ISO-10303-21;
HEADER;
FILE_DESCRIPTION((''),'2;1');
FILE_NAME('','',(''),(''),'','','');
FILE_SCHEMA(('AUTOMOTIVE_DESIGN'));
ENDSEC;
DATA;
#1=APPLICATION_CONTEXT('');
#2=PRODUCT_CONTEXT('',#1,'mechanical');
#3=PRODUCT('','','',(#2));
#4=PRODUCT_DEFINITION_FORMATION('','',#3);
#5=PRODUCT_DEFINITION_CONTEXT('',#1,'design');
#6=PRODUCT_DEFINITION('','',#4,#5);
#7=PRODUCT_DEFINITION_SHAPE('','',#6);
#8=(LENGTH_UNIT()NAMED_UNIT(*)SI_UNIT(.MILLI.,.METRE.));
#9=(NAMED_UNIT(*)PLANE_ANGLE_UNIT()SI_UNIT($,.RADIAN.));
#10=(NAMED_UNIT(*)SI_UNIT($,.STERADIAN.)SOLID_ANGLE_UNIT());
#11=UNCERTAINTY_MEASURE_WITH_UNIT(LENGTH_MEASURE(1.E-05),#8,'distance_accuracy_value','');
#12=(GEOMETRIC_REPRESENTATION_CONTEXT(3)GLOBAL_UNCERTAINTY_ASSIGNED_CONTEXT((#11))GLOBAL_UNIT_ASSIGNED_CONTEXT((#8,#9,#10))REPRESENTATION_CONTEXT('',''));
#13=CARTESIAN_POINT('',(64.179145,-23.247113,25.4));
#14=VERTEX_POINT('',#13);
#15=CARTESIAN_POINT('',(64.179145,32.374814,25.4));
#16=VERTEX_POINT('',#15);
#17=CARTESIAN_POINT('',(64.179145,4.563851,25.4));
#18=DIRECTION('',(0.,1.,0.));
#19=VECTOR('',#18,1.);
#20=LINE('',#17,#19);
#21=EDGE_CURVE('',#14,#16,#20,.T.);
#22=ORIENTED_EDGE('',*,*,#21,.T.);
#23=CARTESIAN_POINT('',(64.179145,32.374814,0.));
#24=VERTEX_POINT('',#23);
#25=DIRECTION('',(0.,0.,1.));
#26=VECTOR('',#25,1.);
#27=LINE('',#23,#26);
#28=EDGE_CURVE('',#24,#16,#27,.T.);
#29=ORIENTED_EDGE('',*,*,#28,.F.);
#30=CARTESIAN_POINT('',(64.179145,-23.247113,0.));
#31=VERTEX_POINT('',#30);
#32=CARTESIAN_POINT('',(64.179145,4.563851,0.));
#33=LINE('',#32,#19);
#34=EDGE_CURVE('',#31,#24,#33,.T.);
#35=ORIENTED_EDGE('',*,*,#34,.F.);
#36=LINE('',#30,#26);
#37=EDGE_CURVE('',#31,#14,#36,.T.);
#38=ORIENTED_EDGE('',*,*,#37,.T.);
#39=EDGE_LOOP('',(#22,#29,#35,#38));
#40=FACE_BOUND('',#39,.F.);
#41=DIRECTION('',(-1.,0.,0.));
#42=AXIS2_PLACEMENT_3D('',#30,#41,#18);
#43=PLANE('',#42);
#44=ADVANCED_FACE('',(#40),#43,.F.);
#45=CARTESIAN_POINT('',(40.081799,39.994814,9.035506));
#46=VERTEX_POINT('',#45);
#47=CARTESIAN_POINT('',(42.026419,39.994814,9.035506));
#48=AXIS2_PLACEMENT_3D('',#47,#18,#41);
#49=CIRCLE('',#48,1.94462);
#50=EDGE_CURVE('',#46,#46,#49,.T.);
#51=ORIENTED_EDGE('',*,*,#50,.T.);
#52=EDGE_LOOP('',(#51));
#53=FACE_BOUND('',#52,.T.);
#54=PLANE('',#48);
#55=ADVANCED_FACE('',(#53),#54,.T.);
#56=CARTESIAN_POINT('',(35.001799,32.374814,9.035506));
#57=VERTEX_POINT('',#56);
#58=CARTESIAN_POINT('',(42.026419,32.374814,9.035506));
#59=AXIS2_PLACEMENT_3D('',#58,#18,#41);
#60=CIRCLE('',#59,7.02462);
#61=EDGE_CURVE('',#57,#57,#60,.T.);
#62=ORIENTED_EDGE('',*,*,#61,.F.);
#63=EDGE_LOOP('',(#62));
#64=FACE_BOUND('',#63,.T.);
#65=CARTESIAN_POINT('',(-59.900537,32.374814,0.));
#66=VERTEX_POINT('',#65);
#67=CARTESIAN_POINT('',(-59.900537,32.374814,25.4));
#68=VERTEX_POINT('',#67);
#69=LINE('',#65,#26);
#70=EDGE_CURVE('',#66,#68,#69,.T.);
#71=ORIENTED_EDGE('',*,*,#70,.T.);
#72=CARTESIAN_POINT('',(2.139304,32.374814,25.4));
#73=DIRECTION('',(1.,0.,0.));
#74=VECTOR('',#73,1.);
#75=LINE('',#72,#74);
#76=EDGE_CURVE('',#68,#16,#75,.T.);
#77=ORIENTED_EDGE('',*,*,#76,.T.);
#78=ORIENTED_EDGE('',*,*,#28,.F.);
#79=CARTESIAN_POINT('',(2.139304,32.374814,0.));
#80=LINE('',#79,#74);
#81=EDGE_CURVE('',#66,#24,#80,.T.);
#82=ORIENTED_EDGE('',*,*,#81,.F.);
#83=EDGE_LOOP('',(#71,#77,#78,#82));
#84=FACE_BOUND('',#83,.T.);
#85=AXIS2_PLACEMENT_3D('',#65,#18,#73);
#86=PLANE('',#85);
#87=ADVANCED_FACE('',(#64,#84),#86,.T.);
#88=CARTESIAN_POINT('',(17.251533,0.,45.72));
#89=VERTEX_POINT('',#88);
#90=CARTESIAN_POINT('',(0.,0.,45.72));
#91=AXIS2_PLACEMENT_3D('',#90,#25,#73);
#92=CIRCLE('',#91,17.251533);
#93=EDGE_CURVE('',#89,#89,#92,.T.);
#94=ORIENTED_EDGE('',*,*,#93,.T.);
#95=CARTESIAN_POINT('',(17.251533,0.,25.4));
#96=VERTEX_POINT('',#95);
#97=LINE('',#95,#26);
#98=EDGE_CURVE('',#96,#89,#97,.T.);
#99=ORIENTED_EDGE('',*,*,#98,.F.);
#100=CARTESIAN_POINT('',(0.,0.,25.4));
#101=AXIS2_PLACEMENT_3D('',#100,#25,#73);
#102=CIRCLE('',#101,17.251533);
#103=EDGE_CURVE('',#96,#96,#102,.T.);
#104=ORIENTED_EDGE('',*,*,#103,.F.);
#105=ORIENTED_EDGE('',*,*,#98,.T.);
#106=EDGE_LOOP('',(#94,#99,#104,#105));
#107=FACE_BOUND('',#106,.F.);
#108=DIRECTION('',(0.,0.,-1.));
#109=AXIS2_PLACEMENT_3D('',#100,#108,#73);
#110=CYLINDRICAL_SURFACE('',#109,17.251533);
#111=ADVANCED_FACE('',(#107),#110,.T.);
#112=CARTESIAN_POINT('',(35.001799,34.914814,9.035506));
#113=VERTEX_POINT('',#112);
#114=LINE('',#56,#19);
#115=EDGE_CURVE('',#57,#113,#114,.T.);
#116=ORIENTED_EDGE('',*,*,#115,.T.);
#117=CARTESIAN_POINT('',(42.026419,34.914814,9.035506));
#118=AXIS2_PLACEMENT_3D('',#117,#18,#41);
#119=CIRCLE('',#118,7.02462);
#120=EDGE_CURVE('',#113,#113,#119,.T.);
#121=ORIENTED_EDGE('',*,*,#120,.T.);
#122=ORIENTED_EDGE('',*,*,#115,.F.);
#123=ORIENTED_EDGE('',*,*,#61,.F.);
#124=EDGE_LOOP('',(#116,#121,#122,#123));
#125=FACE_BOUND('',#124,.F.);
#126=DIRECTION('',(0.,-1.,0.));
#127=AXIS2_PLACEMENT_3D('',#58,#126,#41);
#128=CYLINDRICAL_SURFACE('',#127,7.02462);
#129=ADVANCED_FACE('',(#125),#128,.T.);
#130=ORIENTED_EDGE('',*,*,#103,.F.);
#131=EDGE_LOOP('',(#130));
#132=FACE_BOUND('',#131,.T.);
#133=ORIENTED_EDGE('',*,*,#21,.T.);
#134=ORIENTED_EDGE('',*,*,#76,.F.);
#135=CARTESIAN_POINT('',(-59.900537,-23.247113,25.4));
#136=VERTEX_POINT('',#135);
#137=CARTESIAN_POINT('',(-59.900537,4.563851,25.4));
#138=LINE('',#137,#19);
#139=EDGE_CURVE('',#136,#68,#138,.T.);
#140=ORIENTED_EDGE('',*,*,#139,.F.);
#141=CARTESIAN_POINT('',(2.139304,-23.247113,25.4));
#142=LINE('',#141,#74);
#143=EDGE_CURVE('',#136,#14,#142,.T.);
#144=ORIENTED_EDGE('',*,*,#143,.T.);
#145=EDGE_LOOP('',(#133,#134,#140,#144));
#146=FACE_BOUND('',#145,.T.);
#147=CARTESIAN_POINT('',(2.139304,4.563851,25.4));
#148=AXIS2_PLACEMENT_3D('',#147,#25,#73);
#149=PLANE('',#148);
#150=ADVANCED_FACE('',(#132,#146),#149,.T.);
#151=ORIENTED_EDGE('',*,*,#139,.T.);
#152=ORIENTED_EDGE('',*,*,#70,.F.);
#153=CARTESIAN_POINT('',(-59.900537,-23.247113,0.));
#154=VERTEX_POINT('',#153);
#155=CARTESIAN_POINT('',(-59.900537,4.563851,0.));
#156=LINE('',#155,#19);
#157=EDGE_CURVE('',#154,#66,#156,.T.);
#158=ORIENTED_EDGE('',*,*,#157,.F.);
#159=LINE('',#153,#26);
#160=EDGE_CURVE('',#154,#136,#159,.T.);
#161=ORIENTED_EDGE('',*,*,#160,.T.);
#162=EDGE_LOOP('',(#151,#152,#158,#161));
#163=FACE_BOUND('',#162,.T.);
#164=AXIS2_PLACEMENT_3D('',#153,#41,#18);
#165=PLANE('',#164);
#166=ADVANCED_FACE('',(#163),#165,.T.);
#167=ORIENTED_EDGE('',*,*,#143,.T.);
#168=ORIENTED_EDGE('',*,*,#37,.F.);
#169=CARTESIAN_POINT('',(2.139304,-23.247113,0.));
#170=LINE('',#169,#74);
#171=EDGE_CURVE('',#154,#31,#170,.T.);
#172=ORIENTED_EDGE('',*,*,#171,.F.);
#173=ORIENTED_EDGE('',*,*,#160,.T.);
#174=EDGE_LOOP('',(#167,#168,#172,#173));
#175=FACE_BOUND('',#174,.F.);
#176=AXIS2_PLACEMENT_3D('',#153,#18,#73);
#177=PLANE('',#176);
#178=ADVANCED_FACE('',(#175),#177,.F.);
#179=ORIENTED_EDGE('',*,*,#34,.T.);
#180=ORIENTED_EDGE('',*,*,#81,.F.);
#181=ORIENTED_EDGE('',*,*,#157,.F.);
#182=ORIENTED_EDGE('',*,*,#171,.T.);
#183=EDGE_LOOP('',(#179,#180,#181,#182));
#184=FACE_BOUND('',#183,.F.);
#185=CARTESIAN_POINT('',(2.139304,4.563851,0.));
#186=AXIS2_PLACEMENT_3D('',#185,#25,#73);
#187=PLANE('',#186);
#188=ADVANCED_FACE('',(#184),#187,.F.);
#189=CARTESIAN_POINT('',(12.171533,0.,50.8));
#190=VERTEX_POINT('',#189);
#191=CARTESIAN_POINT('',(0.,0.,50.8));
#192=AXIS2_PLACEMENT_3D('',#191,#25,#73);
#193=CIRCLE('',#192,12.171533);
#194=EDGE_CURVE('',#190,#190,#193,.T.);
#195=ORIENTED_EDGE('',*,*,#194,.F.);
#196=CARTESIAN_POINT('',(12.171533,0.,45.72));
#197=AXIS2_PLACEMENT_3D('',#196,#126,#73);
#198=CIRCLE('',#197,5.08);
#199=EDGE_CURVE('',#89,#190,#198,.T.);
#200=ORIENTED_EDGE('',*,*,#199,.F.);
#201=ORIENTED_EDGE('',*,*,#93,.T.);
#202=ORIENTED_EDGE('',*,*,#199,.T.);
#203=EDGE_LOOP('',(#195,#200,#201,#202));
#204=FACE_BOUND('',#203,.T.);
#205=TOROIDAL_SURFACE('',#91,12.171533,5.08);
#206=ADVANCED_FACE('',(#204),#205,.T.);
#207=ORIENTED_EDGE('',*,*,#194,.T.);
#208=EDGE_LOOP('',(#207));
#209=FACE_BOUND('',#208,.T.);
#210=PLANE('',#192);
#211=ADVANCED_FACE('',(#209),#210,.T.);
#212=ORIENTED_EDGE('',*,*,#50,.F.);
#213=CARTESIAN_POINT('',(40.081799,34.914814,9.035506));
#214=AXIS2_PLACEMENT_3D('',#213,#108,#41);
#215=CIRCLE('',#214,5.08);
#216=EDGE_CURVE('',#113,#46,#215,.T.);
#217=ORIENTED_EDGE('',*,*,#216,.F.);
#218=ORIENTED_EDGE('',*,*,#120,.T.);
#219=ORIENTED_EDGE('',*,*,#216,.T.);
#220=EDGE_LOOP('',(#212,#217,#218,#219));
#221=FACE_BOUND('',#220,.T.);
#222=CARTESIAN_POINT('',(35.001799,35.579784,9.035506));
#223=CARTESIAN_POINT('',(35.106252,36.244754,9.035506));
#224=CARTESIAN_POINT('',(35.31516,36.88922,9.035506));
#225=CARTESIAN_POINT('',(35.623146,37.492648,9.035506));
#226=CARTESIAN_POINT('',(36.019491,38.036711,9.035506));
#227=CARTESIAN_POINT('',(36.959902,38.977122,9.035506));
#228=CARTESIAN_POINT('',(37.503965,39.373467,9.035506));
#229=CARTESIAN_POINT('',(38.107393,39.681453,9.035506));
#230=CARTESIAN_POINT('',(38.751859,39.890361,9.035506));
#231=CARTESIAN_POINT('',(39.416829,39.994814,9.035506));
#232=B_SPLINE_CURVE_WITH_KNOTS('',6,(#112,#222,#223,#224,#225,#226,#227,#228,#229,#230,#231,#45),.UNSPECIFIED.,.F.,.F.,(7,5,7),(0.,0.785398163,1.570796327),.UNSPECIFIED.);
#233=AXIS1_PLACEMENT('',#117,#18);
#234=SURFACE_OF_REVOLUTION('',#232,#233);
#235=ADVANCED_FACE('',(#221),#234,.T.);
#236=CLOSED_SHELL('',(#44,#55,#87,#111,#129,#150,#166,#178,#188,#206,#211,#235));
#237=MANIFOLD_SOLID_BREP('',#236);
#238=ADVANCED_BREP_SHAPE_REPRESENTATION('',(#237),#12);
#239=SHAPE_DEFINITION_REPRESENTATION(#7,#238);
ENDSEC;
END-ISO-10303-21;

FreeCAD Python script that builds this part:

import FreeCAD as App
import Part
import Sketcher


def edges_at(feature, points):
    """Names of the edges that pass closest to the given points."""
    edges = feature.Shape.Edges
    near = lambda p: min(range(len(edges)), key=lambda i: edges[i].distToShape(Part.Vertex(*p))[0])
    return sorted({f"Edge{near(p) + 1}" for p in points})

doc = App.newDocument("Part")
params = doc.addObject("Spreadsheet::Sheet", "Params")
for row, (alias, value) in enumerate([
    ("pad1_length", "1 in"),
    ("pad2_length", "1 in"),
    ("fillet_radius", "0.2 in"),
    ("pad3_length", "0.3 in"),
    ("fillet2_radius", "0.2 in"),
], start=1):
    params.set(f"A{row}", alias)
    params.set(f"B{row}", "=" + value)
    params.setAlias(f"B{row}", alias)

body = doc.addObject("PartDesign::Body", "Body")

sketch1 = body.newObject("Sketcher::SketchObject", "Sketch")
sketch1.AttachmentSupport = (doc.getObject("XY_Plane"), [""])
sketch1.MapMode = "FlatFace"
sketch1.addGeometry([
    Part.LineSegment(App.Vector(-59.900537, 32.374814, 0), App.Vector(-59.900537, -23.247113, 0)),
    Part.LineSegment(App.Vector(-59.900537, -23.247113, 0), App.Vector(64.179145, -23.247113, 0)),
    Part.LineSegment(App.Vector(64.179145, -23.247113, 0), App.Vector(64.179145, 32.374814, 0)),
    Part.LineSegment(App.Vector(64.179145, 32.374814, 0), App.Vector(-59.900537, 32.374814, 0)),
], False)
sketch1.addConstraint([
    Sketcher.Constraint("Coincident", 0, 2, 1, 1),
    Sketcher.Constraint("Coincident", 1, 2, 2, 1),
    Sketcher.Constraint("Coincident", 2, 2, 3, 1),
    Sketcher.Constraint("Coincident", 3, 2, 0, 1),
    Sketcher.Constraint("Vertical", 0),
    Sketcher.Constraint("Horizontal", 1),
    Sketcher.Constraint("Vertical", 2),
    Sketcher.Constraint("Horizontal", 3),
    Sketcher.Constraint("DistanceX", 1, 1, 1, 2, 124.079682),
    Sketcher.Constraint("DistanceY", 0, 2, 0, 1, 55.621927),
    Sketcher.Constraint("DistanceX", 0, 2, -1, 1, 59.900537),
    Sketcher.Constraint("DistanceY", 0, 2, -1, 1, 23.247113),
])
pad1 = body.newObject("PartDesign::Pad", "Pad")
pad1.Profile = sketch1
pad1.setExpression("Length", "Params.pad1_length")

sketch2 = body.newObject("Sketcher::SketchObject", "Sketch001")
sketch2.AttachmentSupport = (doc.getObject("XY_Plane"), [""])
sketch2.MapMode = "FlatFace"
sketch2.AttachmentOffset = App.Placement(App.Vector(0, 0, 1 * 25.4), App.Rotation())
sketch2.addGeometry(Part.Circle(App.Vector(0, 0, 0), App.Vector(0, 0, 1), 17.251533), False)
sketch2.addConstraint([
    Sketcher.Constraint("Coincident", 0, 3, -1, 1),
    Sketcher.Constraint("Diameter", 0, 34.503066),
])
pad2 = body.newObject("PartDesign::Pad", "Pad001")
pad2.Profile = sketch2
pad2.setExpression("Length", "Params.pad2_length")
doc.recompute()

fillet = body.newObject("PartDesign::Fillet", "Fillet")
fillet.Base = (pad2, edges_at(pad2, [(-17.252, 0, 50.8)]))
fillet.setExpression("Radius", "Params.fillet_radius")

sketch3 = body.newObject("Sketcher::SketchObject", "Sketch002")
sketch3.AttachmentSupport = (doc.getObject("XZ_Plane"), [""])
sketch3.MapMode = "FlatFace"
sketch3.AttachmentOffset = App.Placement(App.Vector(0, 0, -32.374814), App.Rotation())
sketch3.addGeometry(Part.Circle(App.Vector(42.026419, 9.035506, 0), App.Vector(0, 0, 1), 7.02462), False)
sketch3.addConstraint([
    Sketcher.Constraint("Diameter", 0, 14.04924),
    Sketcher.Constraint("DistanceX", -1, 1, 0, 3, 42.026419),
    Sketcher.Constraint("DistanceY", -1, 1, 0, 3, 9.035506),
])
pad3 = body.newObject("PartDesign::Pad", "Pad002")
pad3.Profile = sketch3
pad3.setExpression("Length", "Params.pad3_length")
pad3.Reversed = True
doc.recompute()

fillet2 = body.newObject("PartDesign::Fillet", "Fillet001")
fillet2.Base = (pad3, edges_at(pad3, [(49.051, 39.995, 9.036)]))
fillet2.setExpression("Radius", "Params.fillet2_radius")

doc.recompute()
